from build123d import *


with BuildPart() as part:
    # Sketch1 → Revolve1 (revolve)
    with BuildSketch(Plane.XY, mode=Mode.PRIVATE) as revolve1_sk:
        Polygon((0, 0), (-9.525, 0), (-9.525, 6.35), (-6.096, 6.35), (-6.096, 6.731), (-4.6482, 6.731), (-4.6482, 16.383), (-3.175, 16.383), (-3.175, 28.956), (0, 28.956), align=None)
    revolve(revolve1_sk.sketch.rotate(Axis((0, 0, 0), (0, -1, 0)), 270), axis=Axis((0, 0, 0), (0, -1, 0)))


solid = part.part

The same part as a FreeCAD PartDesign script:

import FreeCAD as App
import Part
import Sketcher

V = App.Vector
Q = App.Units.Quantity


def add_polygon(sketch, points):
    """Adds a closed chain of lines whose ends are joined by coincident constraints."""
    first, n = sketch.GeometryCount, len(points)
    for a, b in zip(points, points[1:] + points[:1]):
        sketch.addGeometry(Part.LineSegment(App.Vector(*a, 0), App.Vector(*b, 0)), False)
    for i in range(n):
        sketch.addConstraint(Sketcher.Constraint("Coincident", first + i, 2, first + (i + 1) % n, 1))

doc = App.newDocument("Part")
body = doc.addObject("PartDesign::Body", "Body")

sketch1 = body.newObject("Sketcher::SketchObject", "Sketch")
sketch1.AttachmentSupport = (doc.getObject("XY_Plane"), [""])
sketch1.MapMode = "FlatFace"
add_polygon(sketch1, [(-9.53, 0), (0, 0), (0, 28.96), (-3.17, 28.96), (-3.17, 16.38), (-4.65, 16.38), (-4.65, 6.73), (-6.1, 6.73), (-6.1, 6.35), (-9.53, 6.35)])
sketch1.addConstraint(Sketcher.Constraint("Horizontal", 0))
sketch1.addConstraint(Sketcher.Constraint("Vertical", 1))
sketch1.addConstraint(Sketcher.Constraint("Horizontal", 2))
sketch1.addConstraint(Sketcher.Constraint("Vertical", 3))
sketch1.addConstraint(Sketcher.Constraint("Horizontal", 4))
sketch1.addConstraint(Sketcher.Constraint("Vertical", 5))
sketch1.addConstraint(Sketcher.Constraint("Horizontal", 6))
sketch1.addConstraint(Sketcher.Constraint("Vertical", 7))
sketch1.addConstraint(Sketcher.Constraint("Horizontal", 8))
sketch1.addConstraint(Sketcher.Constraint("Vertical", 9))
sketch1.addConstraint(Sketcher.Constraint("Coincident", 0, 2, -1, 1))
sketch1.addConstraint(Sketcher.Constraint("DistanceY", 1, 1, 1, 2, Q("1.14 in")))
sketch1.addConstraint(Sketcher.Constraint("DistanceY", 5, 2, 5, 1, Q("0.38 in")))
sketch1.addConstraint(Sketcher.Constraint("DistanceY", 9, 2, 9, 1, Q("0.25 in")))
sketch1.addConstraint(Sketcher.Constraint("DistanceX", 0, 1, 0, 2, Q("0.375 in")))
sketch1.addConstraint(Sketcher.Constraint("DistanceX", 2, 2, 2, 1, Q("0.125 in")))
sketch1.addConstraint(Sketcher.Constraint("DistanceX", 4, 2, 4, 1, Q("0.058 in")))
sketch1.addConstraint(Sketcher.Constraint("DistanceX", 6, 2, 6, 1, Q("0.057 in")))
sketch1.addConstraint(Sketcher.Constraint("DistanceY", 3, 2, 3, 1, Q("0.495 in")))
revolution = body.newObject("PartDesign::Revolution", "Revolution")
revolution.Profile = sketch1
revolution.ReferenceAxis = (sketch1, ["V_Axis"])
revolution.Angle = 360

doc.recompute()
